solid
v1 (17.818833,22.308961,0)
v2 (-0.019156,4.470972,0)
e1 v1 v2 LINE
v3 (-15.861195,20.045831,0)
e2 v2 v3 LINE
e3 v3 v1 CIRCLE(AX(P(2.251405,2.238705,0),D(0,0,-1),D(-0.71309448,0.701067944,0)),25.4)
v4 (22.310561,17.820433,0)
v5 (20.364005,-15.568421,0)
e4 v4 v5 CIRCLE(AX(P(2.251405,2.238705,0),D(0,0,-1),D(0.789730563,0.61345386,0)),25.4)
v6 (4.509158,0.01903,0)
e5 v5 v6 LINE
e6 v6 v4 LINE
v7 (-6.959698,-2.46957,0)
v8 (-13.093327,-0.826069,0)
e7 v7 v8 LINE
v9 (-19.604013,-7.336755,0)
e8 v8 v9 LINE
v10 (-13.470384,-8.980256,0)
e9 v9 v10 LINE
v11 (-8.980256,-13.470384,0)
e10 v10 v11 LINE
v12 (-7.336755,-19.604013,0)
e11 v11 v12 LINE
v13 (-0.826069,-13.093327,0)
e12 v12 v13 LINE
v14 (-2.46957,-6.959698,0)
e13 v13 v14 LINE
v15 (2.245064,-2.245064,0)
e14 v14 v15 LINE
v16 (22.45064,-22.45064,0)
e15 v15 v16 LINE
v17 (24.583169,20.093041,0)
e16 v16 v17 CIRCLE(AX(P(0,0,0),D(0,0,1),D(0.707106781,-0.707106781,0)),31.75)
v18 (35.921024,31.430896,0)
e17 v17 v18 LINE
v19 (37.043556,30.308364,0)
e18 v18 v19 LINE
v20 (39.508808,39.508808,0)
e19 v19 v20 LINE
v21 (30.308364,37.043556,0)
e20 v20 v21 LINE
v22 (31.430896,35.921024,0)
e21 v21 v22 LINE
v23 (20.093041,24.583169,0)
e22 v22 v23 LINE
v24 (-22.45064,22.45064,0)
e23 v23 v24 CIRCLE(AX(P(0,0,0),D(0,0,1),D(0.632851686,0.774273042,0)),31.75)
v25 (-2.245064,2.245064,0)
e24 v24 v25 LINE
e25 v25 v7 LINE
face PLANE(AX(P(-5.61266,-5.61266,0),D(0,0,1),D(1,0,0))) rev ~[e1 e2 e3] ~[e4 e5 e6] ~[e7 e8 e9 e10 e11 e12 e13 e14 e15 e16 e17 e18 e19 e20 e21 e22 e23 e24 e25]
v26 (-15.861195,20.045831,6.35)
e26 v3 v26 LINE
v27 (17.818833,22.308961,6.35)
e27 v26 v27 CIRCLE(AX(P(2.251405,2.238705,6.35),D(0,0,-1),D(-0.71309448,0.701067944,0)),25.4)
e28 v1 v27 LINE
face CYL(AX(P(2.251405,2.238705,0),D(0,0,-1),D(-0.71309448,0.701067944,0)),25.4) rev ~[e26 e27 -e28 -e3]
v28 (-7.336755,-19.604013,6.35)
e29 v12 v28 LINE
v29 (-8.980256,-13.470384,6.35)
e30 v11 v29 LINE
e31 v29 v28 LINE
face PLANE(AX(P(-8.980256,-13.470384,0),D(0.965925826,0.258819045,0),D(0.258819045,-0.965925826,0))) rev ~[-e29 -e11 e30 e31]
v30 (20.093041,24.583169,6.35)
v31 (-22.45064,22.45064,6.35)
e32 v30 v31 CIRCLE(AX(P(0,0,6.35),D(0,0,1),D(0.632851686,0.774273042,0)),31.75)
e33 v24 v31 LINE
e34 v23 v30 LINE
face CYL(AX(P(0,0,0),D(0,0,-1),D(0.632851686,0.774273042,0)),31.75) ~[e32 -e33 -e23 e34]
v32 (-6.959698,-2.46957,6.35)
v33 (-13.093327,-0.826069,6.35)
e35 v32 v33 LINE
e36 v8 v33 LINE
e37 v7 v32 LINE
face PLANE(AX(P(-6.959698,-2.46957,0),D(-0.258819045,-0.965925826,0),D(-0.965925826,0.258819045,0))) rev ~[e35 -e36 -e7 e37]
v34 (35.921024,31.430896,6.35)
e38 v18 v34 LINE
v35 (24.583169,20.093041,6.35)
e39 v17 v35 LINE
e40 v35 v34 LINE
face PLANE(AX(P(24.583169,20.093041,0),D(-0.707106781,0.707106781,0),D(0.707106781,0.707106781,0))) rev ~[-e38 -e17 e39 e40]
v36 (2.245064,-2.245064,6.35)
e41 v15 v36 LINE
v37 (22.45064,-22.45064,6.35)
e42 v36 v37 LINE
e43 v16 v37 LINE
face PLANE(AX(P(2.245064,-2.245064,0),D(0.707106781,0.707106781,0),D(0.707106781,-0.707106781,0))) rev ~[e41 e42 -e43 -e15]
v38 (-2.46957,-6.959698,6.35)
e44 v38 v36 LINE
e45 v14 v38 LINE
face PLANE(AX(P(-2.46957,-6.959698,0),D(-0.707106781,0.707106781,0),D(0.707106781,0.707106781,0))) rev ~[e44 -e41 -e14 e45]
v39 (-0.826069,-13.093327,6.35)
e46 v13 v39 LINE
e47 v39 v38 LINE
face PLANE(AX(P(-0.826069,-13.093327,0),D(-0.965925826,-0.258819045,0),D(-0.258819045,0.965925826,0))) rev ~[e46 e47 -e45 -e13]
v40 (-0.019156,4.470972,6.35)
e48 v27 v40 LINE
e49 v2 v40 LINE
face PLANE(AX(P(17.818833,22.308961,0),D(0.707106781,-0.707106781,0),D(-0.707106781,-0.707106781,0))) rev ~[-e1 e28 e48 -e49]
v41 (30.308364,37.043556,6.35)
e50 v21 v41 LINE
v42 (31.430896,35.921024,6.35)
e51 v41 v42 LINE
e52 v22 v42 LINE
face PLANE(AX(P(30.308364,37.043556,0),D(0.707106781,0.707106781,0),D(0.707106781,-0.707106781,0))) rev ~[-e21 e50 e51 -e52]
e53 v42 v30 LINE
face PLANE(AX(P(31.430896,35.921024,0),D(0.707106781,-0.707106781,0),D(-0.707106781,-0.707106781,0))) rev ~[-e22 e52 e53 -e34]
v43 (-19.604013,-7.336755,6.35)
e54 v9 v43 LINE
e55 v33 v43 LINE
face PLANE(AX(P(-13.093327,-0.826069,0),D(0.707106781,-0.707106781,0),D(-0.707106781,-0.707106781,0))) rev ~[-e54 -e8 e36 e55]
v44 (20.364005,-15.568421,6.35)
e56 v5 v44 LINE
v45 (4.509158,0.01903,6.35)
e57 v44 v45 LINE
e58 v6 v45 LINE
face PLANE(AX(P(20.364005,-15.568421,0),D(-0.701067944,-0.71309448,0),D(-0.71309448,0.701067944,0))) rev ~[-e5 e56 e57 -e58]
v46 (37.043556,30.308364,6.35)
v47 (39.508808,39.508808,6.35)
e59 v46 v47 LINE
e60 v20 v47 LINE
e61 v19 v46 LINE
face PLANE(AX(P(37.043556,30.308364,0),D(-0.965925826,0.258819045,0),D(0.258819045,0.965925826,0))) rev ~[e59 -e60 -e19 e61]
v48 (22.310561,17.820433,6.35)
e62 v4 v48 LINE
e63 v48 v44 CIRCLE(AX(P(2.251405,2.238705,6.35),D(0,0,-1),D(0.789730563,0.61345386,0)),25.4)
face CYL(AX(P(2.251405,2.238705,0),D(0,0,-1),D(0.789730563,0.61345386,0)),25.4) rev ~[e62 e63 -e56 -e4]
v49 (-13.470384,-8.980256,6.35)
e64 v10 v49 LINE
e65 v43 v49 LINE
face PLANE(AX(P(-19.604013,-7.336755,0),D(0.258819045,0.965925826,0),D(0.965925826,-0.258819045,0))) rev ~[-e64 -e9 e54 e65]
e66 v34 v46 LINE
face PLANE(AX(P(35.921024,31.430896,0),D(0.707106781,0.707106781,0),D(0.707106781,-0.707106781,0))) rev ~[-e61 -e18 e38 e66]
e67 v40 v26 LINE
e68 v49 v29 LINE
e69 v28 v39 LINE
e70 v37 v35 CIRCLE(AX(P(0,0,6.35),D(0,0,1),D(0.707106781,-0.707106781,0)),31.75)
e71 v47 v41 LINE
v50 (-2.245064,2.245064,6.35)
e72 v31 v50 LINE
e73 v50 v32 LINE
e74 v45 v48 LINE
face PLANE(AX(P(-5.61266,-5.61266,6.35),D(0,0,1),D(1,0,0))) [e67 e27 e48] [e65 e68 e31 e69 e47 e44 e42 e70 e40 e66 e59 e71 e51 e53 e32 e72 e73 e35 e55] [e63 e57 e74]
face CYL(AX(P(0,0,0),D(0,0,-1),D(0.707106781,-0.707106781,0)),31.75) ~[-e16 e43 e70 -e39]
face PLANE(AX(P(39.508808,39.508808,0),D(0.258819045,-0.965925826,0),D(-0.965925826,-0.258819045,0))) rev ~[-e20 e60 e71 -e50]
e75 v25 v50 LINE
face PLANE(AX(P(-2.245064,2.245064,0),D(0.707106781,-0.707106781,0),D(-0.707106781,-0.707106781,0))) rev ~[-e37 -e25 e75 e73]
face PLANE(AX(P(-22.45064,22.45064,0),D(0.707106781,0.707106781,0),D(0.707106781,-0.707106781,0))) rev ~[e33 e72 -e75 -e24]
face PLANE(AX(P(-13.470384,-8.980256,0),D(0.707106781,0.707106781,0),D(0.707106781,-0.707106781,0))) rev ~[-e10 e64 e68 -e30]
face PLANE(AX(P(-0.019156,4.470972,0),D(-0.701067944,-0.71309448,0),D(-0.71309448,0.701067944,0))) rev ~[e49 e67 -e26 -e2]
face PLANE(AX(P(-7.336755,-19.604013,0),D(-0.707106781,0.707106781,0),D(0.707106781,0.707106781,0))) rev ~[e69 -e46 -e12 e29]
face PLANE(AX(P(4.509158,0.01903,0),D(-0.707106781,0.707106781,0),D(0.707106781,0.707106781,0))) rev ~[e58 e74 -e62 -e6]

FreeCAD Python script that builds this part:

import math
import FreeCAD as App
import Part
import Sketcher

V = App.Vector
Q = App.Units.Quantity

doc = App.newDocument("Part")
params = doc.addObject("Spreadsheet::Sheet", "Params")
for row, (alias, value) in enumerate([
    ("sketch1_radius", "1 in"),
    ("sketch1_radius2", "1.25 in"),
    ("sketch1_length", "0.25 in"),
    ("sketch1_length2", "0.0625 in"),
    ("sketch1_length3", "0.375 in"),
    ("pad1_length", "0.25 in"),
], start=1):
    params.set(f"A{row}", alias)
    params.set(f"B{row}", "=" + value)
    params.setAlias(f"B{row}", alias)

body = doc.addObject("PartDesign::Body", "Body")

sketch1 = body.newObject("Sketcher::SketchObject", "Sketch")
sketch1.AttachmentSupport = (doc.getObject("XY_Plane"), [""])
sketch1.MapMode = "FlatFace"
sketch1.addGeometry([
    Part.ArcOfCircle(Part.Circle(V(0, 0, 0), V(0, 0, 1), 31.8), math.radians(-45), math.radians(39)),
    Part.LineSegment(V(24.6, 20.1, 0), V(35.9, 31.4, 0)),
    Part.LineSegment(V(35.9, 31.4, 0), V(37, 30.3, 0)),
    Part.LineSegment(V(37, 30.3, 0), V(39.5, 39.5, 0)),
    Part.LineSegment(V(39.5, 39.5, 0), V(30.3, 37, 0)),
    Part.LineSegment(V(30.3, 37, 0), V(31.4, 35.9, 0)),
    Part.LineSegment(V(31.4, 35.9, 0), V(20.1, 24.6, 0)),
    Part.ArcOfCircle(Part.Circle(V(0, 0, 0), V(0, 0, 1), 31.8), math.radians(51), math.radians(135)),
    Part.LineSegment(V(-22.5, 22.5, 0), V(-2.2, 2.2, 0)),
    Part.LineSegment(V(-2.2, 2.2, 0), V(-7, -2.5, 0)),
    Part.LineSegment(V(-7, -2.5, 0), V(-13.1, -0.8, 0)),
    Part.LineSegment(V(-13.1, -0.8, 0), V(-19.6, -7.3, 0)),
    Part.LineSegment(V(-19.6, -7.3, 0), V(-13.5, -9, 0)),
    Part.LineSegment(V(-13.5, -9, 0), V(-9, -13.5, 0)),
    Part.LineSegment(V(-9, -13.5, 0), V(-7.3, -19.6, 0)),
    Part.LineSegment(V(-7.3, -19.6, 0), V(-0.8, -13.1, 0)),
    Part.LineSegment(V(-0.8, -13.1, 0), V(-2.5, -7, 0)),
    Part.LineSegment(V(-2.5, -7, 0), V(2.2, -2.2, 0)),
    Part.LineSegment(V(2.2, -2.2, 0), V(22.5, -22.5, 0)),
    Part.LineSegment(V(4.5, 0, 0), V(22.3, 17.8, 0)),
    Part.ArcOfCircle(Part.Circle(V(2.3, 2.2, 0), V(0, 0, 1), 25.4), math.radians(-45), math.radians(38)),
    Part.LineSegment(V(20.4, -15.6, 0), V(4.5, 0, 0)),
    Part.ArcOfCircle(Part.Circle(V(2.3, 2.2, 0), V(0, 0, 1), 25.4), math.radians(52), math.radians(135)),
    Part.LineSegment(V(17.8, 22.3, 0), V(0, 4.5, 0)),
    Part.LineSegment(V(0, 4.5, 0), V(-15.9, 20, 0)),
], False)
sketch1.addConstraint([
    Sketcher.Constraint("Coincident", 0, 2, 1, 1),
    Sketcher.Constraint("Coincident", 1, 2, 2, 1),
    Sketcher.Constraint("Coincident", 2, 2, 3, 1),
    Sketcher.Constraint("Coincident", 3, 2, 4, 1),
    Sketcher.Constraint("Coincident", 4, 2, 5, 1),
    Sketcher.Constraint("Coincident", 5, 2, 6, 1),
    Sketcher.Constraint("Coincident", 6, 2, 7, 1),
    Sketcher.Constraint("Coincident", 7, 2, 8, 1),
    Sketcher.Constraint("Coincident", 8, 2, 9, 1),
    Sketcher.Constraint("Coincident", 9, 2, 10, 1),
    Sketcher.Constraint("Coincident", 10, 2, 11, 1),
    Sketcher.Constraint("Coincident", 11, 2, 12, 1),
    Sketcher.Constraint("Coincident", 12, 2, 13, 1),
    Sketcher.Constraint("Coincident", 13, 2, 14, 1),
    Sketcher.Constraint("Coincident", 14, 2, 15, 1),
    Sketcher.Constraint("Coincident", 15, 2, 16, 1),
    Sketcher.Constraint("Coincident", 16, 2, 17, 1),
    Sketcher.Constraint("Coincident", 17, 2, 18, 1),
    Sketcher.Constraint("Coincident", 18, 2, 0, 1),
    Sketcher.Constraint("Coincident", 19, 2, 20, 2),
    Sketcher.Constraint("Coincident", 20, 1, 21, 1),
    Sketcher.Constraint("Coincident", 21, 2, 19, 1),
    Sketcher.Constraint("Coincident", 22, 1, 23, 1),
    Sketcher.Constraint("Coincident", 23, 2, 24, 1),
    Sketcher.Constraint("Coincident", 24, 2, 22, 2),
    Sketcher.Constraint("Coincident", 0, 3, -1, 1),
    Sketcher.Constraint("Coincident", 7, 3, -1, 1),
    Sketcher.Constraint("Coincident", 22, 3, 20, 3),
    Sketcher.Constraint("Equal", 0, 7),
    Sketcher.Constraint("Equal", 20, 22),
    Sketcher.Constraint("Symmetric", 8, 2, 17, 2, -1, 1),
    Sketcher.Constraint("Perpendicular", 1, 2),
    Sketcher.Constraint("Parallel", 2, 5),
    Sketcher.Constraint("Perpendicular", 5, 6),
    Sketcher.Constraint("Perpendicular", 6, 8),
    Sketcher.Constraint("Perpendicular", 8, 9),
    Sketcher.Constraint("Perpendicular", 3, 10),
    Sketcher.Constraint("Parallel", 9, 11),
    Sketcher.Constraint("Parallel", 10, 12),
    Sketcher.Constraint("Perpendicular", 11, 13),
    Sketcher.Constraint("Perpendicular", 4, 14),
    Sketcher.Constraint("Perpendicular", 13, 15),
    Sketcher.Constraint("Parallel", 14, 16),
    Sketcher.Constraint("Parallel", 15, 17),
    Sketcher.Constraint("Perpendicular", 17, 18),
    Sketcher.Constraint("Perpendicular", 18, 19),
    Sketcher.Constraint("Parallel", 19, 23),
    Sketcher.Constraint("Parallel", 21, 24),
    Sketcher.Constraint("Equal", 3, 4),
    Sketcher.Constraint("Equal", 2, 5),
    Sketcher.Constraint("Equal", 1, 6),
    Sketcher.Constraint("Equal", 10, 12),
    Sketcher.Constraint("Equal", 12, 13),
    Sketcher.Constraint("Equal", 13, 14),
    Sketcher.Constraint("Equal", 11, 15),
    Sketcher.Constraint("Equal", 14, 16),
    Sketcher.Constraint("Equal", 9, 17),
    Sketcher.Constraint("Radius", 20, Q("1 in")),
    Sketcher.Constraint("Radius", 0, Q("1.25 in")),
    Sketcher.Constraint("Angle", 1, Q("45 deg")),
    Sketcher.Constraint("Angle", 3, Q("75 deg")),
    Sketcher.Constraint("Angle", 4, Q("-165 deg")),
    Sketcher.Constraint("Distance", 10, Q("0.25 in")),
    Sketcher.Constraint("Distance", 2, Q("0.0625 in")),
    Sketcher.Constraint("Distance", 3, Q("0.375 in")),
    Sketcher.Constraint("Distance", 9, Q("0.2625 in")),
    Sketcher.Constraint("Distance", 11, Q("0.3625 in")),
    Sketcher.Constraint("DistanceX", 20, 3, 20, 1, Q("18.1126 mm")),
    Sketcher.Constraint("DistanceY", 10, 2, 24, 2, Q("20.8719 mm")),
    Sketcher.Constraint("Distance", 1, Q("16.034149 mm")),
    Sketcher.Constraint("DistanceX", -1, 1, 19, 2, Q("22.310561 mm")),
    Sketcher.Constraint("DistanceY", 20, 1, -1, 1, Q("15.568421 mm")),
    Sketcher.Constraint("DistanceY", -1, 1, 21, 2, Q("0.01903 mm")),
    Sketcher.Constraint("DistanceY", -1, 1, 22, 1, Q("22.308961 mm")),
    Sketcher.Constraint("DistanceX", 22, 3, 1, 2, Q("33.66962 mm")),
])
sketch1.setExpression("Constraints[57]", "Params.sketch1_radius")
sketch1.setExpression("Constraints[58]", "Params.sketch1_radius2")
sketch1.setExpression("Constraints[62]", "Params.sketch1_length")
sketch1.setExpression("Constraints[63]", "Params.sketch1_length2")
sketch1.setExpression("Constraints[64]", "Params.sketch1_length3")
pad1 = body.newObject("PartDesign::Pad", "Pad")
pad1.Profile = sketch1
pad1.setExpression("Length", "Params.pad1_length")

doc.recompute()
